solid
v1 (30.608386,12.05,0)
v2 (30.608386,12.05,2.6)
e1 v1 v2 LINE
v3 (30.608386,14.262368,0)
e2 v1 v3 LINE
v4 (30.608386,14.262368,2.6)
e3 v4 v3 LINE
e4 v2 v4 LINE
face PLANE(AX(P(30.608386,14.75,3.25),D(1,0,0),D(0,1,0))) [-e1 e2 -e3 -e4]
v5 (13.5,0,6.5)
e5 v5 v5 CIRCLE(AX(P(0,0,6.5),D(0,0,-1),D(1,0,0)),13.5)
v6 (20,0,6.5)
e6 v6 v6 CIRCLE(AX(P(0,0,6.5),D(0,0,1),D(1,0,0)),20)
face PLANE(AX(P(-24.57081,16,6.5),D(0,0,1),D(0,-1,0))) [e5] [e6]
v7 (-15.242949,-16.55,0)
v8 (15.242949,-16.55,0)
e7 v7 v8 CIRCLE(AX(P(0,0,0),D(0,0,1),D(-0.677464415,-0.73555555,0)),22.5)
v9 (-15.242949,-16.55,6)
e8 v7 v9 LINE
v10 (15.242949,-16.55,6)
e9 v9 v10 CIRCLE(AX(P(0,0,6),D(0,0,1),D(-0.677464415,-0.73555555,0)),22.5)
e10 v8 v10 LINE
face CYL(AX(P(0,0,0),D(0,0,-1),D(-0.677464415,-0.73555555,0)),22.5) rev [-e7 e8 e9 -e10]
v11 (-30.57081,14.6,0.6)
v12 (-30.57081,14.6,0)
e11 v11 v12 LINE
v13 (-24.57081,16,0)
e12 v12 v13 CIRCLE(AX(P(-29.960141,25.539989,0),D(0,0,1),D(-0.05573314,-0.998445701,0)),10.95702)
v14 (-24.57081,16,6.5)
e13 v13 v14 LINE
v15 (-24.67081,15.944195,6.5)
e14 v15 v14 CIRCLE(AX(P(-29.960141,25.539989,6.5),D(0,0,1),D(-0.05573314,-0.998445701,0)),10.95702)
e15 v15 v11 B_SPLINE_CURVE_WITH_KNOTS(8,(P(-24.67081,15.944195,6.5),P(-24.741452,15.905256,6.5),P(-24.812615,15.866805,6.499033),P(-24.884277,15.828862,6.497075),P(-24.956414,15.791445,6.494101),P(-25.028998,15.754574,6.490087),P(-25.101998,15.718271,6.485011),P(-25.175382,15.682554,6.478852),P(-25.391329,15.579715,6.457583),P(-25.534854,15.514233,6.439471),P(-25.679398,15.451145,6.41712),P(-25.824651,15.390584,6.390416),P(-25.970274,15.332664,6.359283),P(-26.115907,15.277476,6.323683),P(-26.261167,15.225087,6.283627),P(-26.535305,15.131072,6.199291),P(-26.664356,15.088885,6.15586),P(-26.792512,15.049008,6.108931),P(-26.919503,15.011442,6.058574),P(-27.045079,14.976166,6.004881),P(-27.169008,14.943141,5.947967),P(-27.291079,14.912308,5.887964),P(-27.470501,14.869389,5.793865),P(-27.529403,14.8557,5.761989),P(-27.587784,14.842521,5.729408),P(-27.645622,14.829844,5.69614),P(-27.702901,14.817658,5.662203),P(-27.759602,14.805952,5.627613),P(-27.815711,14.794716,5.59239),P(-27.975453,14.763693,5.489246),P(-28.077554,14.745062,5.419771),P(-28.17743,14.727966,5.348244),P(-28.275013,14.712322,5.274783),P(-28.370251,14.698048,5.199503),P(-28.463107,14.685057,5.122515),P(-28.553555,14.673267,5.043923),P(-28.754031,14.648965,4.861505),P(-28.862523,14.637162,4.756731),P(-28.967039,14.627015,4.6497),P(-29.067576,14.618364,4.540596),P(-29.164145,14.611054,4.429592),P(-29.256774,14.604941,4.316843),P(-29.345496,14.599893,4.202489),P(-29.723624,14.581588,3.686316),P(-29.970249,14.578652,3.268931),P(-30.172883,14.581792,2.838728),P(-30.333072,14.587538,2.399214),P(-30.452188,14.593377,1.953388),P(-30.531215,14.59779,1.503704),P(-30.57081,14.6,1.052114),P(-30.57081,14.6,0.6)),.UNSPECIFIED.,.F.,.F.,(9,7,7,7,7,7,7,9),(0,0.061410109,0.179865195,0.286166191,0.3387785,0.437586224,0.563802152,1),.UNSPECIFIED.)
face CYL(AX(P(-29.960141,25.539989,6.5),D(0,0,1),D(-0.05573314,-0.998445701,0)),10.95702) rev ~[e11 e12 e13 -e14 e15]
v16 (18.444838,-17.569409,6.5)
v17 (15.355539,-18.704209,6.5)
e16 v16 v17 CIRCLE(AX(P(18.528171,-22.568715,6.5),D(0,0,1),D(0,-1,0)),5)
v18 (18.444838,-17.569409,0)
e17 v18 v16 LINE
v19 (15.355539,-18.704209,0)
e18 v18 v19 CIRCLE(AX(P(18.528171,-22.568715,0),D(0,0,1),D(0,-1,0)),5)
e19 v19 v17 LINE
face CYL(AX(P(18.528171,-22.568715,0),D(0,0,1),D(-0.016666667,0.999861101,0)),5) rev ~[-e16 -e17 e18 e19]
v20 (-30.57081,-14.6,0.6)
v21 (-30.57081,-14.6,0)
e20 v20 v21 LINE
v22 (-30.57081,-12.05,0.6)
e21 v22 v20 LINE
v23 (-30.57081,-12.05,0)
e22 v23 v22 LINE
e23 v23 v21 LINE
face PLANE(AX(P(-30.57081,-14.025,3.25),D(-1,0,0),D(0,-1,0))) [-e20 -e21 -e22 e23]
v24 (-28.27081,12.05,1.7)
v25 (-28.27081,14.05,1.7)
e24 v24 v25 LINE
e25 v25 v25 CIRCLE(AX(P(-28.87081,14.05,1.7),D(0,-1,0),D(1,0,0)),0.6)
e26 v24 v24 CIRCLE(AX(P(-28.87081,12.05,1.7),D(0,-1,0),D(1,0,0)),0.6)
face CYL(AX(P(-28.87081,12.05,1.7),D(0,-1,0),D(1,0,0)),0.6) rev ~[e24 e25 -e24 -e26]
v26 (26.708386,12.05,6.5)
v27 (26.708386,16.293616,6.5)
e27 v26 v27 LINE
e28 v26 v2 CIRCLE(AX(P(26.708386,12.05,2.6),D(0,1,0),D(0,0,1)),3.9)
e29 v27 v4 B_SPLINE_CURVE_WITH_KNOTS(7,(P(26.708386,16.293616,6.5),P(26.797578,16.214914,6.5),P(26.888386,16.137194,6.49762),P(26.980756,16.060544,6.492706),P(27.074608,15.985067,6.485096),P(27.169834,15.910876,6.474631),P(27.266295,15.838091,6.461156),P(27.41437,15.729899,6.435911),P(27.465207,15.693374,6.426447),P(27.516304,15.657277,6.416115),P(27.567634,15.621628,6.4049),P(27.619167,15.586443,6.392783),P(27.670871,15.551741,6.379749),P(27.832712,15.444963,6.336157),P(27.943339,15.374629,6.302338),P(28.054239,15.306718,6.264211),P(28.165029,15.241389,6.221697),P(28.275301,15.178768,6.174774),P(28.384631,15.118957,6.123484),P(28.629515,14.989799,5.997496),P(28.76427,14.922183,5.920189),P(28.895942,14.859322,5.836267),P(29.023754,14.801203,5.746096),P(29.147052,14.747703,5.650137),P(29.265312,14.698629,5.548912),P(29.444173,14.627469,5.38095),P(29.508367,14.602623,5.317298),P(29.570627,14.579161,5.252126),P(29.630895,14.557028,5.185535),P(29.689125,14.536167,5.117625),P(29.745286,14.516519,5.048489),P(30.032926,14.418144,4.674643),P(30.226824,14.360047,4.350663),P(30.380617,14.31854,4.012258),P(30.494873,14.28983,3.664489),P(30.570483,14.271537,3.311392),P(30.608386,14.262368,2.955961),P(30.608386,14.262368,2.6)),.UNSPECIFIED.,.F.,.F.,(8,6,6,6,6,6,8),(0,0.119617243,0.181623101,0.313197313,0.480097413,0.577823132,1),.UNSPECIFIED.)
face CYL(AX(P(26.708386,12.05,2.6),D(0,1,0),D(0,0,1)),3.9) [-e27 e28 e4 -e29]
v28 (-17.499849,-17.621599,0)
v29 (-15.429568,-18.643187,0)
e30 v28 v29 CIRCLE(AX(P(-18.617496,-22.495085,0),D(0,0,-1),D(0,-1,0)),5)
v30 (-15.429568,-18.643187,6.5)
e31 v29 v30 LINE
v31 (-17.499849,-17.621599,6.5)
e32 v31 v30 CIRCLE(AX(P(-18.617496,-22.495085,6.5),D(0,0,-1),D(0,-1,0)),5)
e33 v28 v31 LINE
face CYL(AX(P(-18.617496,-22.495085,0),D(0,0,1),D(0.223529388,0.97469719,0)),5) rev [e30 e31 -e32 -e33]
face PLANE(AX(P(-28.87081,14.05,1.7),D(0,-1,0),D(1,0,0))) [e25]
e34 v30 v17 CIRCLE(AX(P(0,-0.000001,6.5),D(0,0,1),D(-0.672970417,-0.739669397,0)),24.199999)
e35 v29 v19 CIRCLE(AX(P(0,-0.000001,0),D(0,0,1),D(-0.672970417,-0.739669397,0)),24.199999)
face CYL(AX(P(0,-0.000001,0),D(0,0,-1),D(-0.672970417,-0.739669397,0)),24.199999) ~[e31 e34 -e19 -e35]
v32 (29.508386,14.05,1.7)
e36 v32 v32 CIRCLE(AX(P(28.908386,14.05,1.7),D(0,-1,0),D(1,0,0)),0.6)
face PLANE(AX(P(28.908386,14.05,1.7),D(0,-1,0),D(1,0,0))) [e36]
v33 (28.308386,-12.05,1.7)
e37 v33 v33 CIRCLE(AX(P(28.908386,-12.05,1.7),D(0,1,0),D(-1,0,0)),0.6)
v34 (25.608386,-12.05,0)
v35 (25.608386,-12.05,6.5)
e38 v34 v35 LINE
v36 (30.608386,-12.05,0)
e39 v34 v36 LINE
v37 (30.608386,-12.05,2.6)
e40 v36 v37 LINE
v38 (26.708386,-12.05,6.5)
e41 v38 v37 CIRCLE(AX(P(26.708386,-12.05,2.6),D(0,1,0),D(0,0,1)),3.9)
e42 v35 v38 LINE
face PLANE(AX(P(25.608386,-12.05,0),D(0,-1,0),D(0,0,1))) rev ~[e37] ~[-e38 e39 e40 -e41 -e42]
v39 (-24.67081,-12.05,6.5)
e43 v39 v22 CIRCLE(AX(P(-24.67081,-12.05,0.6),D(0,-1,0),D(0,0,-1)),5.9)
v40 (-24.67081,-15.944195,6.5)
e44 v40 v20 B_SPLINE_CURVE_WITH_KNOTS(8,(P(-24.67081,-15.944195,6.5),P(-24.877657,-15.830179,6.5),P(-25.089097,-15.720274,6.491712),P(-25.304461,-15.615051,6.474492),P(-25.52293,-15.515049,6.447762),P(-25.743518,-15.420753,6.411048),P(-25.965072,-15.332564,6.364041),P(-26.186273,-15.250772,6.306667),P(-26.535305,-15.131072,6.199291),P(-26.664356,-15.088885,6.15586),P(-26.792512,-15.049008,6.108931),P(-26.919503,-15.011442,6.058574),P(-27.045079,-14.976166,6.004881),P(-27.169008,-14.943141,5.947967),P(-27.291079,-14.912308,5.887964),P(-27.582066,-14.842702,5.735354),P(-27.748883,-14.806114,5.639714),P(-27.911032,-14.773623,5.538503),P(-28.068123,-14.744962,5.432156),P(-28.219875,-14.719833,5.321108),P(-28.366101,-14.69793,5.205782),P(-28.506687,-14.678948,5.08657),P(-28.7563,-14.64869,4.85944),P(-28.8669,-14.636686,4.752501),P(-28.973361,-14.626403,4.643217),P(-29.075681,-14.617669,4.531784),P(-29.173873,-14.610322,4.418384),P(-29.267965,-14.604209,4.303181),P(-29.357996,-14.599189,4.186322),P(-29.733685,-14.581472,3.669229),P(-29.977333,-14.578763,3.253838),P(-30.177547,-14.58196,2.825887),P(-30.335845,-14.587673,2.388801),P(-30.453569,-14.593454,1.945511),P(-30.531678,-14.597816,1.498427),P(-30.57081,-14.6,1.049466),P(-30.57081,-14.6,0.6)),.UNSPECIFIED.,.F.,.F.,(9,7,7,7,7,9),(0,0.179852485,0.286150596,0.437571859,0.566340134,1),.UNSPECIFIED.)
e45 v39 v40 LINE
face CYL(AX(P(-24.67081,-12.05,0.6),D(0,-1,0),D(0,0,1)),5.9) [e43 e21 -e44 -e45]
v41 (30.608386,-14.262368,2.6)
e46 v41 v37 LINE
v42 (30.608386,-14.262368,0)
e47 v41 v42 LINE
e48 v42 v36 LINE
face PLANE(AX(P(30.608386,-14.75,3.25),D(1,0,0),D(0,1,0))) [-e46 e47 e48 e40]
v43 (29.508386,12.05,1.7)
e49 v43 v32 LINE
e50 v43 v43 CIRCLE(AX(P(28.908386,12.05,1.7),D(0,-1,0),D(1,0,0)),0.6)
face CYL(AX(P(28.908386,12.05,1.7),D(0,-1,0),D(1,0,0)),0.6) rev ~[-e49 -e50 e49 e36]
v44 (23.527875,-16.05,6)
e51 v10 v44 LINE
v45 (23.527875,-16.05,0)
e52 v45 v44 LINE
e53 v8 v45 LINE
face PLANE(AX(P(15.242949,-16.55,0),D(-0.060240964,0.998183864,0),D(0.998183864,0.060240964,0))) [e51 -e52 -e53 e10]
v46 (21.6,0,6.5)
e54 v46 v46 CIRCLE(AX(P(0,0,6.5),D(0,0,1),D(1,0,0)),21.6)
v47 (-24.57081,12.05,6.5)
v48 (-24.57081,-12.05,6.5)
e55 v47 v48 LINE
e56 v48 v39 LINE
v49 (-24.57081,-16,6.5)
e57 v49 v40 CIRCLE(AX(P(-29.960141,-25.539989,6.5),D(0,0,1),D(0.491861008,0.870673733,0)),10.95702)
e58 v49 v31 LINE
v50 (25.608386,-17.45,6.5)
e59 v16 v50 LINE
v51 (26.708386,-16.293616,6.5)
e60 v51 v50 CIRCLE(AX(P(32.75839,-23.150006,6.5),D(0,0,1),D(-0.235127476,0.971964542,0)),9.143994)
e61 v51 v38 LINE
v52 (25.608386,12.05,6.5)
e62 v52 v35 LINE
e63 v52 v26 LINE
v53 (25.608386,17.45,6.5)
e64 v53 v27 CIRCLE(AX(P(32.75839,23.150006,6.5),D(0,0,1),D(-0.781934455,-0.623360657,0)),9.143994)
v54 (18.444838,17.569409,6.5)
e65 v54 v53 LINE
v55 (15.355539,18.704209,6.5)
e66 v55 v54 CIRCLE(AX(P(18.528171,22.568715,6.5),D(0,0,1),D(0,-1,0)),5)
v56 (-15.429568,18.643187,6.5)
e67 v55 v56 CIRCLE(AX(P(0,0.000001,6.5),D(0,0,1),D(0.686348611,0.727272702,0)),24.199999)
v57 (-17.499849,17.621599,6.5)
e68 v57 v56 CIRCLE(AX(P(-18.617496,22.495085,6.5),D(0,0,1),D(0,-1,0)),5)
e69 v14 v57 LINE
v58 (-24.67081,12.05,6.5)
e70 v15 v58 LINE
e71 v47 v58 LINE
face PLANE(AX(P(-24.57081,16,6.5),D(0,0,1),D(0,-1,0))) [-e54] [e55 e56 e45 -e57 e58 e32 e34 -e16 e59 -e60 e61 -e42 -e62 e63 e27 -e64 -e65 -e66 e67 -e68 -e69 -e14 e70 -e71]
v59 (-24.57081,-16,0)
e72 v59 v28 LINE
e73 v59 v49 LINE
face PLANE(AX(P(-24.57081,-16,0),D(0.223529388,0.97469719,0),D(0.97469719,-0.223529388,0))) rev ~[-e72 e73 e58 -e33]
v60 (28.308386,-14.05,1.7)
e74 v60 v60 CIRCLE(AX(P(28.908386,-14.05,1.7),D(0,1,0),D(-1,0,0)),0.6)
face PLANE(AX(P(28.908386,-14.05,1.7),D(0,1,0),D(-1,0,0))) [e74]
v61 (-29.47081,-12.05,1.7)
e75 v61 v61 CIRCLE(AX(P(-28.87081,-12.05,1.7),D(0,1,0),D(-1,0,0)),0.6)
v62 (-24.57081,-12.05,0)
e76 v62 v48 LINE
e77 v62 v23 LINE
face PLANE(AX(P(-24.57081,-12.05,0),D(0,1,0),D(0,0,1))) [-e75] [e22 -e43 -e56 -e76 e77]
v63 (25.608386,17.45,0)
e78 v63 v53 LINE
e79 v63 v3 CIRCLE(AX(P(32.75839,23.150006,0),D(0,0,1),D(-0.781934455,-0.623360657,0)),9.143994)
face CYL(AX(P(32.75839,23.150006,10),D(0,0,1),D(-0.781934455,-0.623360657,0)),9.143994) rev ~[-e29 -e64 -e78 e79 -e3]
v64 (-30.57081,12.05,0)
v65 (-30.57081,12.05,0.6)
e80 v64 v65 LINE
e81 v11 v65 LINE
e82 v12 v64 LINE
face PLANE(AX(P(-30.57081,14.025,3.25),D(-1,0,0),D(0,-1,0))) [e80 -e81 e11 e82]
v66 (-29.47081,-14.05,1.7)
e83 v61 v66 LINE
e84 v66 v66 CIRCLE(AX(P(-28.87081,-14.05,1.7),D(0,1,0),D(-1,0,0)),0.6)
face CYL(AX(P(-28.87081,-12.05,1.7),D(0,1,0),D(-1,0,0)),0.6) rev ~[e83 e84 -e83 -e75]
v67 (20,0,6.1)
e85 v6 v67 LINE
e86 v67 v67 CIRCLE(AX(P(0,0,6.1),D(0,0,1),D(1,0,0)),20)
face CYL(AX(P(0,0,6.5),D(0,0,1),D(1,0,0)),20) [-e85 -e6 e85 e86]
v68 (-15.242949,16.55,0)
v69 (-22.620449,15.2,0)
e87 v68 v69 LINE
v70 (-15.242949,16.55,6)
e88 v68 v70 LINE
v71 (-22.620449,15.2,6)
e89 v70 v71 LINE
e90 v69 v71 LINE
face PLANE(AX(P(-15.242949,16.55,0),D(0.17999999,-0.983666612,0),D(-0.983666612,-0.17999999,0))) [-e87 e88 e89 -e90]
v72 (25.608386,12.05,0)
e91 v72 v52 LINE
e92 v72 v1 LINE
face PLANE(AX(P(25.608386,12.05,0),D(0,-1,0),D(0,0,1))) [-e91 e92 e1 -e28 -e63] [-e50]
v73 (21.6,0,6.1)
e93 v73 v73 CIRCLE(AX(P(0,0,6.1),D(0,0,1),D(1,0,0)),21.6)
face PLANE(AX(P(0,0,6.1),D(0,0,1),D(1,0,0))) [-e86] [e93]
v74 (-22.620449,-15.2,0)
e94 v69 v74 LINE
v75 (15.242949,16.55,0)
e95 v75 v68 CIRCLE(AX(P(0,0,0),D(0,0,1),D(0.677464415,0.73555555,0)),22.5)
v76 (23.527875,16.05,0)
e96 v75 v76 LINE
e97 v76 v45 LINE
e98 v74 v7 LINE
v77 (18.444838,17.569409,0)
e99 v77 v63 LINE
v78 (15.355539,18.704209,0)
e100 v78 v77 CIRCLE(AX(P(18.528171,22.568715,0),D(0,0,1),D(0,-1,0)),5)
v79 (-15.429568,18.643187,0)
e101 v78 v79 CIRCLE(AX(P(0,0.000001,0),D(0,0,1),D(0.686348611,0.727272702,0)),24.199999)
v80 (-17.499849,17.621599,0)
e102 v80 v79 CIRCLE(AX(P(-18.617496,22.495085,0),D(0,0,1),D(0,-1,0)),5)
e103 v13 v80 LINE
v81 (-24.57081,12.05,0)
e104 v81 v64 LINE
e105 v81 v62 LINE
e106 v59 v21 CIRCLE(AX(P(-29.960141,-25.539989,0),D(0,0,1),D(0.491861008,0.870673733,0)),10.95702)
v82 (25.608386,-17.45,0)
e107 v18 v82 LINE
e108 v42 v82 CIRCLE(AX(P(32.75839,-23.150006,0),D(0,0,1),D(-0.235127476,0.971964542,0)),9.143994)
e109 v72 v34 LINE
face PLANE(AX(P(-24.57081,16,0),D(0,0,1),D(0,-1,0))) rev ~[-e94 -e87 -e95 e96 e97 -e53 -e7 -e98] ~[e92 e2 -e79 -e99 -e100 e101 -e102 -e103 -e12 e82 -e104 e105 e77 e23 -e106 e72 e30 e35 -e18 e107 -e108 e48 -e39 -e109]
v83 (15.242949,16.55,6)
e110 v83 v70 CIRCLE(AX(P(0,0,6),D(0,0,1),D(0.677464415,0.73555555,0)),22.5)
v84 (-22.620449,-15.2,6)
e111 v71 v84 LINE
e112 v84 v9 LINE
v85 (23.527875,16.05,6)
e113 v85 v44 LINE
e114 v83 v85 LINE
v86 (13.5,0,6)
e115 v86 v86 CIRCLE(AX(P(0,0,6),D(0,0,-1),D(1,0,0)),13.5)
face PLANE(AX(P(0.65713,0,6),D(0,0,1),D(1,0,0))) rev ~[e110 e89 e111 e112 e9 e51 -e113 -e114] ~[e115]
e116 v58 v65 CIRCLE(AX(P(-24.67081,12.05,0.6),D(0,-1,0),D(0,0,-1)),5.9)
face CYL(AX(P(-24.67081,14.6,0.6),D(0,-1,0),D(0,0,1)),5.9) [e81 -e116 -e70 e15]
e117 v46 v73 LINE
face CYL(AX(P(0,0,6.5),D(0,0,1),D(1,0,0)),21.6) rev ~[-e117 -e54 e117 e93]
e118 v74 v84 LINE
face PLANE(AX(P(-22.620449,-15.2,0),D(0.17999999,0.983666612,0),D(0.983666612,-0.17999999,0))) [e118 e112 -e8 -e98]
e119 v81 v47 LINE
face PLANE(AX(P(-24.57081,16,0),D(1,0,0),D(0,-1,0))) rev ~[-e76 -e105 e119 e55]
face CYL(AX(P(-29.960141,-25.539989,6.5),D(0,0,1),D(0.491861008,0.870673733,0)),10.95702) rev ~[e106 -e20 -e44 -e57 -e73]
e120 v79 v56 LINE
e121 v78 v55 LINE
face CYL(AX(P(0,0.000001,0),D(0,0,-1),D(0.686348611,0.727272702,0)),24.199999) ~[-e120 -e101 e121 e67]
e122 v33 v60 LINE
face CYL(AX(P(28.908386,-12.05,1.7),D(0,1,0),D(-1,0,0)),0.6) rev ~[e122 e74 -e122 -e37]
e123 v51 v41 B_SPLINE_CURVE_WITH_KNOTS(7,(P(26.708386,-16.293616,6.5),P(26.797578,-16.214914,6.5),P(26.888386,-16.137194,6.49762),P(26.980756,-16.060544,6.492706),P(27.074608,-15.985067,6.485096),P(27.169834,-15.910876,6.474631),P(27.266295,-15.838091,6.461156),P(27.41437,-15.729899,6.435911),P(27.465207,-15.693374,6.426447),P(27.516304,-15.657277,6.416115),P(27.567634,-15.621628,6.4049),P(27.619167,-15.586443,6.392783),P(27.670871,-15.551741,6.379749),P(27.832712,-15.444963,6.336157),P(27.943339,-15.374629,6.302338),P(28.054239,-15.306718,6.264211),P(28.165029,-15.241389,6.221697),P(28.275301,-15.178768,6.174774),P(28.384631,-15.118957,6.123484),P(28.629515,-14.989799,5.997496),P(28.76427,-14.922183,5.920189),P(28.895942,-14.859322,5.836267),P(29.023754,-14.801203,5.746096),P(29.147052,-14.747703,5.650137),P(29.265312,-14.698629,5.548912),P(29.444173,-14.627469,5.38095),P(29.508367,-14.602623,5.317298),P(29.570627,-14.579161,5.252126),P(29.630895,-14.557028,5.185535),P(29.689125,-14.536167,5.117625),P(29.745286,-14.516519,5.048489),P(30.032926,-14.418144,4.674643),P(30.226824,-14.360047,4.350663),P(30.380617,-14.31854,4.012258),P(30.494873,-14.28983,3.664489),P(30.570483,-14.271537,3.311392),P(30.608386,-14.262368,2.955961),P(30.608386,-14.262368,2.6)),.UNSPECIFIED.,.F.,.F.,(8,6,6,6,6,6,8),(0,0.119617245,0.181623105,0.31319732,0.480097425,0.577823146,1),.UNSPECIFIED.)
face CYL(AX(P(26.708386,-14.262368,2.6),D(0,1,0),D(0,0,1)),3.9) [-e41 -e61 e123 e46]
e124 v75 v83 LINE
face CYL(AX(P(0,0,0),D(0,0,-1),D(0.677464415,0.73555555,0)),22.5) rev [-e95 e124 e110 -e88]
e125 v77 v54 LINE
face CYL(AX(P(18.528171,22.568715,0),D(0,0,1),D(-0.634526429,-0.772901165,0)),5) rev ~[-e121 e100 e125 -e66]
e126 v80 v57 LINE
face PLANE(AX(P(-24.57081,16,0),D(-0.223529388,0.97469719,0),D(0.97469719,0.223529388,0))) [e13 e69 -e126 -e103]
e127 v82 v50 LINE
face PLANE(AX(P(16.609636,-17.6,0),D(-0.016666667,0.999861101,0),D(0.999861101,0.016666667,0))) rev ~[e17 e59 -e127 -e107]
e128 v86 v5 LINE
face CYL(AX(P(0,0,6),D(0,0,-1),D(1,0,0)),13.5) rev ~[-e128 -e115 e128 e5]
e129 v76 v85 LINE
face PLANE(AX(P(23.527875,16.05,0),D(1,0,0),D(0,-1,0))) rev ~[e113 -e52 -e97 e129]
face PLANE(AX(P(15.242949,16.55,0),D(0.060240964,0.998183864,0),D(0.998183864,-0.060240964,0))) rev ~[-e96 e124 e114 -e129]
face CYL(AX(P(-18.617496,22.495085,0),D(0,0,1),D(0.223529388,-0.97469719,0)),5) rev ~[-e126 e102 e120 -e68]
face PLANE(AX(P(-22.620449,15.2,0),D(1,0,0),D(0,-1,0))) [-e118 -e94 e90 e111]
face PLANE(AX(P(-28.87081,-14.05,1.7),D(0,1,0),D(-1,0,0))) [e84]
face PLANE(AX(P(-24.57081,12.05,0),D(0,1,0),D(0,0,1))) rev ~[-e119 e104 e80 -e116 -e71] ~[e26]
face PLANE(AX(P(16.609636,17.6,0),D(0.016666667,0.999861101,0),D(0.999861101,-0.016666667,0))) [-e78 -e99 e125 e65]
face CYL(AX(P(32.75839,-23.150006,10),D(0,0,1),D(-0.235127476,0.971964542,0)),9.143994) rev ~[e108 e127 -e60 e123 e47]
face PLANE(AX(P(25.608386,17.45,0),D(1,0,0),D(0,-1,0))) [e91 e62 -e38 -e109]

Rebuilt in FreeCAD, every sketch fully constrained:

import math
import FreeCAD as App
import Part
import Sketcher
Q = App.Units.Quantity


def edges_at(feature, points):
    """Names of the edges that pass closest to the given points."""
    edges = feature.Shape.Edges
    near = lambda p: min(range(len(edges)), key=lambda i: edges[i].distToShape(Part.Vertex(*p))[0])
    return sorted({f"Edge{near(p) + 1}" for p in points})

doc = App.newDocument("Part")
body = doc.addObject("PartDesign::Body", "Body")

# Sketch on XY plane
sketch1 = body.newObject("Sketcher::SketchObject", "Sketch")
sketch1.AttachmentSupport = (doc.getObject("XY_Plane"), [""])
sketch1.MapMode = "FlatFace"
sketch1.addGeometry(Part.LineSegment(App.Vector(-25, 16, 0), App.Vector(-25, -16, 0)), False)
sketch1.addGeometry(Part.LineSegment(App.Vector(-25, -16, 0), App.Vector(-16, -18, 0)), False)
sketch1.addGeometry(Part.ArcOfCircle(Part.Circle(App.Vector(0, 0, 0), App.Vector(0, 0, 1), 24), math.radians(-132), math.radians(-47)), False)
sketch1.addGeometry(Part.LineSegment(App.Vector(17, -18, 0), App.Vector(26, -17, 0)), False)
sketch1.addGeometry(Part.LineSegment(App.Vector(26, -17, 0), App.Vector(26, 17, 0)), False)
sketch1.addGeometry(Part.LineSegment(App.Vector(26, 17, 0), App.Vector(17, 18, 0)), False)
sketch1.addGeometry(Part.ArcOfCircle(Part.Circle(App.Vector(0, 0, 0), App.Vector(0, 0, 1), 24), math.radians(47), math.radians(132)), False)
sketch1.addGeometry(Part.LineSegment(App.Vector(-16, 18, 0), App.Vector(-25, 16, 0)), False)
sketch1.addConstraint(Sketcher.Constraint("Coincident", 0, 2, 1, 1))
sketch1.addConstraint(Sketcher.Constraint("Coincident", 1, 2, 2, 1))
sketch1.addConstraint(Sketcher.Constraint("Coincident", 2, 2, 3, 1))
sketch1.addConstraint(Sketcher.Constraint("Coincident", 3, 2, 4, 1))
sketch1.addConstraint(Sketcher.Constraint("Coincident", 4, 2, 5, 1))
sketch1.addConstraint(Sketcher.Constraint("Coincident", 5, 2, 6, 1))
sketch1.addConstraint(Sketcher.Constraint("Coincident", 6, 2, 7, 1))
sketch1.addConstraint(Sketcher.Constraint("Coincident", 7, 2, 0, 1))
sketch1.addConstraint(Sketcher.Constraint("Vertical", 0))
sketch1.addConstraint(Sketcher.Constraint("Vertical", 4))
sketch1.addConstraint(Sketcher.Constraint("Coincident", 2, 3, -1, 1))
sketch1.addConstraint(Sketcher.Constraint("Coincident", 6, 3, -1, 1))
sketch1.addConstraint(Sketcher.Constraint("Equal", 2, 6))
sketch1.addConstraint(Sketcher.Constraint("Vertical", 2, 2, 5, 2))
sketch1.addConstraint(Sketcher.Constraint("Vertical", 1, 2, 6, 2))
sketch1.addConstraint(Sketcher.Constraint("Equal", 3, 5))
sketch1.addConstraint(Sketcher.Constraint("Equal", 1, 7))
sketch1.addConstraint(Sketcher.Constraint("Radius", 2, Q("24.199999 mm")))
sketch1.addConstraint(Sketcher.Constraint("DistanceY", 0, 2, 0, 1, Q("32 mm")))
sketch1.addConstraint(Sketcher.Constraint("Distance", 3, Q("9 mm")))
sketch1.addConstraint(Sketcher.Constraint("DistanceY", 4, 1, 4, 2, Q("34.9 mm")))
sketch1.addConstraint(Sketcher.Constraint("Distance", 1, Q("8.500001 mm")))
sketch1.addConstraint(Sketcher.Constraint("DistanceY", 1, 2, -1, 1, Q("17.9 mm")))
sketch1.addConstraint(Sketcher.Constraint("DistanceY", 2, 2, -1, 1, Q("17.6 mm")))
pad1 = body.newObject("PartDesign::Pad", "Pad")
pad1.Profile = sketch1
pad1.Length = 6.5

# Sketch on XY plane
sketch2 = body.newObject("Sketcher::SketchObject", "Sketch001")
sketch2.AttachmentSupport = (doc.getObject("XY_Plane"), [""])
sketch2.MapMode = "FlatFace"
sketch2.addGeometry(Part.LineSegment(App.Vector(-15, 17, 0), App.Vector(-23, 15, 0)), False)
sketch2.addGeometry(Part.LineSegment(App.Vector(-23, 15, 0), App.Vector(-23, -15, 0)), False)
sketch2.addGeometry(Part.LineSegment(App.Vector(-23, -15, 0), App.Vector(-15, -17, 0)), False)
sketch2.addGeometry(Part.ArcOfCircle(Part.Circle(App.Vector(0, 0, 0), App.Vector(0, 0, 1), 22), math.radians(-133), math.radians(-47)), False)
sketch2.addGeometry(Part.LineSegment(App.Vector(15, -17, 0), App.Vector(24, -16, 0)), False)
sketch2.addGeometry(Part.LineSegment(App.Vector(24, -16, 0), App.Vector(24, 16, 0)), False)
sketch2.addGeometry(Part.LineSegment(App.Vector(24, 16, 0), App.Vector(15, 17, 0)), False)
sketch2.addGeometry(Part.ArcOfCircle(Part.Circle(App.Vector(0, 0, 0), App.Vector(0, 0, 1), 22), math.radians(47), math.radians(133)), False)
sketch2.addConstraint(Sketcher.Constraint("Coincident", 0, 2, 1, 1))
sketch2.addConstraint(Sketcher.Constraint("Coincident", 1, 2, 2, 1))
sketch2.addConstraint(Sketcher.Constraint("Coincident", 2, 2, 3, 1))
sketch2.addConstraint(Sketcher.Constraint("Coincident", 3, 2, 4, 1))
sketch2.addConstraint(Sketcher.Constraint("Coincident", 4, 2, 5, 1))
sketch2.addConstraint(Sketcher.Constraint("Coincident", 5, 2, 6, 1))
sketch2.addConstraint(Sketcher.Constraint("Coincident", 6, 2, 7, 1))
sketch2.addConstraint(Sketcher.Constraint("Coincident", 7, 2, 0, 1))
sketch2.addConstraint(Sketcher.Constraint("Vertical", 1))
sketch2.addConstraint(Sketcher.Constraint("Vertical", 5))
sketch2.addConstraint(Sketcher.Constraint("Coincident", 3, 3, -1, 1))
sketch2.addConstraint(Sketcher.Constraint("Coincident", 7, 3, -1, 1))
sketch2.addConstraint(Sketcher.Constraint("Equal", 3, 7))
sketch2.addConstraint(Sketcher.Constraint("Horizontal", 2, 2, 3, 2))
sketch2.addConstraint(Sketcher.Constraint("Horizontal", 6, 2, 7, 2))
sketch2.addConstraint(Sketcher.Constraint("Vertical", 3, 2, 6, 2))
sketch2.addConstraint(Sketcher.Constraint("Equal", 0, 2))
sketch2.addConstraint(Sketcher.Constraint("Equal", 4, 6))
sketch2.addConstraint(Sketcher.Constraint("Radius", 3, Q("22.5 mm")))
sketch2.addConstraint(Sketcher.Constraint("DistanceY", 1, 2, 1, 1, Q("30.4 mm")))
sketch2.addConstraint(Sketcher.Constraint("DistanceY", 5, 1, 5, 2, Q("32.1 mm")))
sketch2.addConstraint(Sketcher.Constraint("Distance", 0, Q("7.5 mm")))
sketch2.addConstraint(Sketcher.Constraint("Distance", 4, Q("8.3 mm")))
sketch2.addConstraint(Sketcher.Constraint("DistanceY", 3, 2, 4, 2, Q("0.5 mm")))
pocket1 = body.newObject("PartDesign::Pocket", "Pocket")
pocket1.Profile = sketch2
pocket1.Length = 6
pocket1.Reversed = True

# Sketch on XY plane
sketch3 = body.newObject("Sketcher::SketchObject", "Sketch002")
sketch3.AttachmentSupport = (doc.getObject("XY_Plane"), [""])
sketch3.MapMode = "FlatFace"
sketch3.AttachmentOffset = App.Placement(App.Vector(0, 0, 6), App.Rotation())
sketch3.addGeometry(Part.Circle(App.Vector(0, 0, 0), App.Vector(0, 0, 1), 14), False)
sketch3.addConstraint(Sketcher.Constraint("Coincident", 0, 3, -1, 1))
sketch3.addConstraint(Sketcher.Constraint("Diameter", 0, Q("27 mm")))
pocket2 = body.newObject("PartDesign::Pocket", "Pocket001")
pocket2.Profile = sketch3
pocket2.Length = 1
pocket2.Reversed = True

# Sketch on YZ plane
sketch4 = body.newObject("Sketcher::SketchObject", "Sketch003")
sketch4.AttachmentSupport = (doc.getObject("YZ_Plane"), [""])
sketch4.MapMode = "FlatFace"
sketch4.AttachmentOffset = App.Placement(App.Vector(0, 0, 25.608386), App.Rotation())
sketch4.addGeometry(Part.LineSegment(App.Vector(-17, 6, 0), App.Vector(-17, 0, 0)), False)
sketch4.addGeometry(Part.LineSegment(App.Vector(-17, 0, 0), App.Vector(-12, 0, 0)), False)
sketch4.addGeometry(Part.LineSegment(App.Vector(-12, 0, 0), App.Vector(-12, 6, 0)), False)
sketch4.addGeometry(Part.LineSegment(App.Vector(-12, 6, 0), App.Vector(-17, 6, 0)), False)
sketch4.addGeometry(Part.LineSegment(App.Vector(12, 6, 0), App.Vector(12, 0, 0)), False)
sketch4.addGeometry(Part.LineSegment(App.Vector(12, 0, 0), App.Vector(17, 0, 0)), False)
sketch4.addGeometry(Part.LineSegment(App.Vector(17, 0, 0), App.Vector(17, 6, 0)), False)
sketch4.addGeometry(Part.LineSegment(App.Vector(17, 6, 0), App.Vector(12, 6, 0)), False)
sketch4.addConstraint(Sketcher.Constraint("Coincident", 0, 2, 1, 1))
sketch4.addConstraint(Sketcher.Constraint("Coincident", 1, 2, 2, 1))
sketch4.addConstraint(Sketcher.Constraint("Coincident", 2, 2, 3, 1))
sketch4.addConstraint(Sketcher.Constraint("Coincident", 3, 2, 0, 1))
sketch4.addConstraint(Sketcher.Constraint("Coincident", 4, 2, 5, 1))
sketch4.addConstraint(Sketcher.Constraint("Coincident", 5, 2, 6, 1))
sketch4.addConstraint(Sketcher.Constraint("Coincident", 6, 2, 7, 1))
sketch4.addConstraint(Sketcher.Constraint("Coincident", 7, 2, 4, 1))
sketch4.addConstraint(Sketcher.Constraint("Vertical", 0))
sketch4.addConstraint(Sketcher.Constraint("Horizontal", 1))
sketch4.addConstraint(Sketcher.Constraint("Vertical", 2))
sketch4.addConstraint(Sketcher.Constraint("Horizontal", 3))
sketch4.addConstraint(Sketcher.Constraint("Vertical", 4))
sketch4.addConstraint(Sketcher.Constraint("Horizontal", 5))
sketch4.addConstraint(Sketcher.Constraint("Vertical", 6))
sketch4.addConstraint(Sketcher.Constraint("Horizontal", 7))
sketch4.addConstraint(Sketcher.Constraint("Symmetric", 1, 2, 4, 2, -1, 1))
sketch4.addConstraint(Sketcher.Constraint("Symmetric", 0, 2, 5, 2, -2))
sketch4.addConstraint(Sketcher.Constraint("Horizontal", 3, 2, 6, 2))
sketch4.addConstraint(Sketcher.Constraint("DistanceX", 1, 1, 1, 2, Q("5.4 mm")))
sketch4.addConstraint(Sketcher.Constraint("DistanceY", 0, 2, 0, 1, Q("6.5 mm")))
sketch4.addConstraint(Sketcher.Constraint("DistanceX", 1, 2, 4, 2, Q("24.1 mm")))
pad2 = body.newObject("PartDesign::Pad", "Pad001")
pad2.Profile = sketch4
pad2.Length = 5

# Sketch on XY plane
sketch5 = body.newObject("Sketcher::SketchObject", "Sketch004")
sketch5.AttachmentSupport = (doc.getObject("XY_Plane"), [""])
sketch5.MapMode = "FlatFace"
sketch5.AttachmentOffset = App.Placement(App.Vector(0, 0, 10), App.Rotation())
sketch5.addGeometry(Part.ArcOfCircle(Part.Circle(App.Vector(32.8, 23.2, 0), App.Vector(0, 0, 1), 9.1), math.radians(-141), math.radians(-104)), False)
sketch5.addGeometry(Part.LineSegment(App.Vector(30.6, 14.3, 0), App.Vector(30.6, 17.4, 0)), False)
sketch5.addGeometry(Part.LineSegment(App.Vector(30.6, 17.4, 0), App.Vector(25.6, 17.4, 0)), False)
sketch5.addGeometry(Part.ArcOfCircle(Part.Circle(App.Vector(32.8, -23.2, 0), App.Vector(0, 0, 1), 9.1), math.radians(104), math.radians(141)), False)
sketch5.addGeometry(Part.LineSegment(App.Vector(25.6, -17.4, 0), App.Vector(30.6, -17.4, 0)), False)
sketch5.addGeometry(Part.LineSegment(App.Vector(30.6, -17.4, 0), App.Vector(30.6, -14.3, 0)), False)
sketch5.addConstraint(Sketcher.Constraint("Coincident", 0, 2, 1, 1))
sketch5.addConstraint(Sketcher.Constraint("Coincident", 1, 2, 2, 1))
sketch5.addConstraint(Sketcher.Constraint("Coincident", 2, 2, 0, 1))
sketch5.addConstraint(Sketcher.Constraint("Coincident", 3, 2, 4, 1))
sketch5.addConstraint(Sketcher.Constraint("Coincident", 4, 2, 5, 1))
sketch5.addConstraint(Sketcher.Constraint("Coincident", 5, 2, 3, 1))
sketch5.addConstraint(Sketcher.Constraint("Vertical", 1))
sketch5.addConstraint(Sketcher.Constraint("Horizontal", 2))
sketch5.addConstraint(Sketcher.Constraint("Horizontal", 4))
sketch5.addConstraint(Sketcher.Constraint("Vertical", 5))
sketch5.addConstraint(Sketcher.Constraint("Equal", 0, 3))
sketch5.addConstraint(Sketcher.Constraint("Symmetric", 0, 3, 3, 3, -1))
sketch5.addConstraint(Sketcher.Constraint("Symmetric", 1, 2, 4, 2, -1))
sketch5.addConstraint(Sketcher.Constraint("DistanceX", 2, 2, 2, 1, Q("5 mm")))
sketch5.addConstraint(Sketcher.Constraint("DistanceY", 3, 2, 2, 2, Q("34.9 mm")))
sketch5.addConstraint(Sketcher.Constraint("Radius", 0, Q("9.143994 mm")))
sketch5.addConstraint(Sketcher.Constraint("DistanceY", 1, 1, 1, 2, Q("3.187632 mm")))
sketch5.addConstraint(Sketcher.Constraint("DistanceX", -1, 1, 0, 3, Q("32.75839 mm")))
pocket3 = body.newObject("PartDesign::Pocket", "Pocket002")
pocket3.Profile = sketch5
pocket3.Length = 10

# Sketch on XZ plane
sketch6 = body.newObject("Sketcher::SketchObject", "Sketch005")
sketch6.AttachmentSupport = (doc.getObject("XZ_Plane"), [""])
sketch6.MapMode = "FlatFace"
sketch6.AttachmentOffset = App.Placement(App.Vector(0, 0, 12.05), App.Rotation())
sketch6.addGeometry(Part.Circle(App.Vector(28.9, 1.7, 0), App.Vector(0, 0, 1), 0.6), False)
sketch6.addConstraint(Sketcher.Constraint("Diameter", 0, Q("1.2 mm")))
sketch6.addConstraint(Sketcher.Constraint("DistanceY", -1, 1, 0, 3, Q("1.7 mm")))
sketch6.addConstraint(Sketcher.Constraint("DistanceX", -1, 1, 0, 3, Q("28.908386 mm")))
pocket4 = body.newObject("PartDesign::Pocket", "Pocket003")
pocket4.Profile = sketch6
pocket4.Length = 2
pocket4.Reversed = True

# Sketch on XZ plane
sketch7 = body.newObject("Sketcher::SketchObject", "Sketch006")
sketch7.AttachmentSupport = (doc.getObject("XZ_Plane"), [""])
sketch7.MapMode = "FlatFace"
sketch7.AttachmentOffset = App.Placement(App.Vector(0, 0, -12.05), App.Rotation())
sketch7.addGeometry(Part.Circle(App.Vector(28.9, 1.7, 0), App.Vector(0, 0, 1), 0.6), False)
sketch7.addConstraint(Sketcher.Constraint("Diameter", 0, Q("1.2 mm")))
sketch7.addConstraint(Sketcher.Constraint("DistanceY", -1, 1, 0, 3, Q("1.7 mm")))
sketch7.addConstraint(Sketcher.Constraint("DistanceX", -1, 1, 0, 3, Q("28.908386 mm")))
pocket5 = body.newObject("PartDesign::Pocket", "Pocket004")
pocket5.Profile = sketch7
pocket5.Length = 2
doc.recompute()

fillet = body.newObject("PartDesign::Fillet", "Fillet")
fillet.Base = (pocket5, edges_at(pocket5, [(30.608, -13.156, 6.5)]))
fillet.Radius = 3.9
doc.recompute()

fillet2 = body.newObject("PartDesign::Fillet", "Fillet001")
fillet2.Base = (fillet, edges_at(fillet, [(30.608, 13.156, 6.5)]))
fillet2.Radius = 3.9
doc.recompute()

fillet3 = body.newObject("PartDesign::Fillet", "Fillet002")
fillet3.Base = (fillet2, edges_at(fillet2, [(16.61, -17.6, 3.25)]))
fillet3.Radius = 5
doc.recompute()

fillet4 = body.newObject("PartDesign::Fillet", "Fillet003")
fillet4.Base = (fillet3, edges_at(fillet3, [(16.61, 17.6, 3.25)]))
fillet4.Radius = 5
doc.recompute()

fillet5 = body.newObject("PartDesign::Fillet", "Fillet004")
fillet5.Base = (fillet4, edges_at(fillet4, [(-16.286, -17.9, 3.25)]))
fillet5.Radius = 5
doc.recompute()

fillet6 = body.newObject("PartDesign::Fillet", "Fillet005")
fillet6.Base = (fillet5, edges_at(fillet5, [(-16.286, 17.9, 3.25)]))
fillet6.Radius = 5

# Sketch on YZ plane
sketch8 = body.newObject("Sketcher::SketchObject", "Sketch007")
sketch8.AttachmentSupport = (doc.getObject("YZ_Plane"), [""])
sketch8.MapMode = "FlatFace"
sketch8.AttachmentOffset = App.Placement(App.Vector(0, 0, -24.57081), App.Rotation())
sketch8.addGeometry(Part.LineSegment(App.Vector(16, 6.5, 0), App.Vector(16, 0, 0)), False)
sketch8.addGeometry(Part.LineSegment(App.Vector(16, 0, 0), App.Vector(12.1, 0, 0)), False)
sketch8.addGeometry(Part.LineSegment(App.Vector(12.1, 0, 0), App.Vector(12.1, 6.5, 0)), False)
sketch8.addGeometry(Part.LineSegment(App.Vector(12.1, 6.5, 0), App.Vector(16, 6.5, 0)), False)
sketch8.addGeometry(Part.LineSegment(App.Vector(-12.1, 6.5, 0), App.Vector(-12.1, 0, 0)), False)
sketch8.addGeometry(Part.LineSegment(App.Vector(-12.1, 0, 0), App.Vector(-16, 0, 0)), False)
sketch8.addGeometry(Part.LineSegment(App.Vector(-16, 0, 0), App.Vector(-16, 6.5, 0)), False)
sketch8.addGeometry(Part.LineSegment(App.Vector(-16, 6.5, 0), App.Vector(-12.1, 6.5, 0)), False)
sketch8.addConstraint(Sketcher.Constraint("Coincident", 0, 2, 1, 1))
sketch8.addConstraint(Sketcher.Constraint("Coincident", 1, 2, 2, 1))
sketch8.addConstraint(Sketcher.Constraint("Coincident", 2, 2, 3, 1))
sketch8.addConstraint(Sketcher.Constraint("Coincident", 3, 2, 0, 1))
sketch8.addConstraint(Sketcher.Constraint("Coincident", 4, 2, 5, 1))
sketch8.addConstraint(Sketcher.Constraint("Coincident", 5, 2, 6, 1))
sketch8.addConstraint(Sketcher.Constraint("Coincident", 6, 2, 7, 1))
sketch8.addConstraint(Sketcher.Constraint("Coincident", 7, 2, 4, 1))
sketch8.addConstraint(Sketcher.Constraint("Vertical", 0))
sketch8.addConstraint(Sketcher.Constraint("Horizontal", 1))
sketch8.addConstraint(Sketcher.Constraint("Vertical", 2))
sketch8.addConstraint(Sketcher.Constraint("Horizontal", 3))
sketch8.addConstraint(Sketcher.Constraint("Vertical", 4))
sketch8.addConstraint(Sketcher.Constraint("Horizontal", 5))
sketch8.addConstraint(Sketcher.Constraint("Vertical", 6))
sketch8.addConstraint(Sketcher.Constraint("Horizontal", 7))
sketch8.addConstraint(Sketcher.Constraint("Symmetric", 1, 2, 4, 2, -1, 1))
sketch8.addConstraint(Sketcher.Constraint("Symmetric", 0, 2, 5, 2, -2))
sketch8.addConstraint(Sketcher.Constraint("Horizontal", 3, 2, 6, 2))
sketch8.addConstraint(Sketcher.Constraint("DistanceY", 0, 2, 0, 1, Q("6.5 mm")))
sketch8.addConstraint(Sketcher.Constraint("DistanceX", -1, 1, 0, 2, Q("16 mm")))
sketch8.addConstraint(Sketcher.Constraint("DistanceX", 1, 2, 1, 1, Q("3.95 mm")))
pad3 = body.newObject("PartDesign::Pad", "Pad002")
pad3.Profile = sketch8
pad3.Length = 6
pad3.Reversed = True

# Sketch on XY plane
sketch9 = body.newObject("Sketcher::SketchObject", "Sketch008")
sketch9.AttachmentSupport = (doc.getObject("XY_Plane"), [""])
sketch9.MapMode = "FlatFace"
sketch9.AttachmentOffset = App.Placement(App.Vector(0, 0, 6.5), App.Rotation())
sketch9.addGeometry(Part.ArcOfCircle(Part.Circle(App.Vector(-30, 25.5, 0), App.Vector(0, 0, 1), 11), math.radians(-93), math.radians(-61)), False)
sketch9.addGeometry(Part.LineSegment(App.Vector(-24.6, 16, 0), App.Vector(-30.6, 16, 0)), False)
sketch9.addGeometry(Part.LineSegment(App.Vector(-30.6, 16, 0), App.Vector(-30.6, 14.6, 0)), False)
sketch9.addGeometry(Part.ArcOfCircle(Part.Circle(App.Vector(-30, -25.5, 0), App.Vector(0, 0, 1), 11), math.radians(61), math.radians(93)), False)
sketch9.addGeometry(Part.LineSegment(App.Vector(-30.6, -14.6, 0), App.Vector(-30.6, -16, 0)), False)
sketch9.addGeometry(Part.LineSegment(App.Vector(-30.6, -16, 0), App.Vector(-24.6, -16, 0)), False)
sketch9.addConstraint(Sketcher.Constraint("Coincident", 0, 2, 1, 1))
sketch9.addConstraint(Sketcher.Constraint("Coincident", 1, 2, 2, 1))
sketch9.addConstraint(Sketcher.Constraint("Coincident", 2, 2, 0, 1))
sketch9.addConstraint(Sketcher.Constraint("Coincident", 3, 2, 4, 1))
sketch9.addConstraint(Sketcher.Constraint("Coincident", 4, 2, 5, 1))
sketch9.addConstraint(Sketcher.Constraint("Coincident", 5, 2, 3, 1))
sketch9.addConstraint(Sketcher.Constraint("Horizontal", 1))
sketch9.addConstraint(Sketcher.Constraint("Vertical", 2))
sketch9.addConstraint(Sketcher.Constraint("Vertical", 4))
sketch9.addConstraint(Sketcher.Constraint("Horizontal", 5))
sketch9.addConstraint(Sketcher.Constraint("Equal", 0, 3))
sketch9.addConstraint(Sketcher.Constraint("Symmetric", 0, 3, 3, 3, -1))
sketch9.addConstraint(Sketcher.Constraint("Symmetric", 1, 2, 4, 2, -1))
sketch9.addConstraint(Sketcher.Constraint("DistanceX", 1, 2, 1, 1, Q("6 mm")))
sketch9.addConstraint(Sketcher.Constraint("DistanceY", 2, 2, 2, 1, Q("1.4 mm")))
sketch9.addConstraint(Sketcher.Constraint("DistanceY", -1, 1, 0, 2, Q("16 mm")))
sketch9.addConstraint(Sketcher.Constraint("Radius", 0, Q("10.95702 mm")))
sketch9.addConstraint(Sketcher.Constraint("DistanceX", 0, 3, -1, 1, Q("29.960141 mm")))
pocket6 = body.newObject("PartDesign::Pocket", "Pocket005")
pocket6.Profile = sketch9
pocket6.Length = 10

# Sketch on XZ plane
sketch10 = body.newObject("Sketcher::SketchObject", "Sketch009")
sketch10.AttachmentSupport = (doc.getObject("XZ_Plane"), [""])
sketch10.MapMode = "FlatFace"
sketch10.AttachmentOffset = App.Placement(App.Vector(0, 0, 12.05), App.Rotation())
sketch10.addGeometry(Part.Circle(App.Vector(-28.9, 1.7, 0), App.Vector(0, 0, 1), 0.6), False)
sketch10.addConstraint(Sketcher.Constraint("Diameter", 0, Q("1.2 mm")))
sketch10.addConstraint(Sketcher.Constraint("DistanceY", -1, 1, 0, 3, Q("1.7 mm")))
sketch10.addConstraint(Sketcher.Constraint("DistanceX", 0, 3, -1, 1, Q("28.87081 mm")))
pocket7 = body.newObject("PartDesign::Pocket", "Pocket006")
pocket7.Profile = sketch10
pocket7.Length = 2
pocket7.Reversed = True

# Sketch on XZ plane
sketch11 = body.newObject("Sketcher::SketchObject", "Sketch010")
sketch11.AttachmentSupport = (doc.getObject("XZ_Plane"), [""])
sketch11.MapMode = "FlatFace"
sketch11.AttachmentOffset = App.Placement(App.Vector(0, 0, -12.05), App.Rotation())
sketch11.addGeometry(Part.Circle(App.Vector(-28.9, 1.7, 0), App.Vector(0, 0, 1), 0.6), False)
sketch11.addConstraint(Sketcher.Constraint("Diameter", 0, Q("1.2 mm")))
sketch11.addConstraint(Sketcher.Constraint("DistanceY", -1, 1, 0, 3, Q("1.7 mm")))
sketch11.addConstraint(Sketcher.Constraint("DistanceX", 0, 3, -1, 1, Q("28.87081 mm")))
pocket8 = body.newObject("PartDesign::Pocket", "Pocket007")
pocket8.Profile = sketch11
pocket8.Length = 2
doc.recompute()

fillet7 = body.newObject("PartDesign::Fillet", "Fillet006")
fillet7.Base = (pocket8, edges_at(pocket8, [(-30.571, 13.325, 6.5)]))
fillet7.Radius = 5.9
doc.recompute()

fillet8 = body.newObject("PartDesign::Fillet", "Fillet007")
fillet8.Base = (fillet7, edges_at(fillet7, [(-30.571, -13.325, 6.5)]))
fillet8.Radius = 5.9

# Sketch on XY plane
sketch12 = body.newObject("Sketcher::SketchObject", "Sketch011")
sketch12.AttachmentSupport = (doc.getObject("XY_Plane"), [""])
sketch12.MapMode = "FlatFace"
sketch12.AttachmentOffset = App.Placement(App.Vector(0, 0, 6.5), App.Rotation())
sketch12.addGeometry(Part.Circle(App.Vector(0, 0, 0), App.Vector(0, 0, 1), 22), False)
sketch12.addGeometry(Part.Circle(App.Vector(0, 0, 0), App.Vector(0, 0, 1), 20), False)
sketch12.addConstraint(Sketcher.Constraint("Coincident", 0, 3, -1, 1))
sketch12.addConstraint(Sketcher.Constraint("Coincident", 1, 3, -1, 1))
sketch12.addConstraint(Sketcher.Constraint("Diameter", 1, Q("40 mm")))
sketch12.addConstraint(Sketcher.Constraint("Diameter", 0, Q("43.2 mm")))
pocket9 = body.newObject("PartDesign::Pocket", "Pocket008")
pocket9.Profile = sketch12
pocket9.Length = 0.4

doc.recompute()
